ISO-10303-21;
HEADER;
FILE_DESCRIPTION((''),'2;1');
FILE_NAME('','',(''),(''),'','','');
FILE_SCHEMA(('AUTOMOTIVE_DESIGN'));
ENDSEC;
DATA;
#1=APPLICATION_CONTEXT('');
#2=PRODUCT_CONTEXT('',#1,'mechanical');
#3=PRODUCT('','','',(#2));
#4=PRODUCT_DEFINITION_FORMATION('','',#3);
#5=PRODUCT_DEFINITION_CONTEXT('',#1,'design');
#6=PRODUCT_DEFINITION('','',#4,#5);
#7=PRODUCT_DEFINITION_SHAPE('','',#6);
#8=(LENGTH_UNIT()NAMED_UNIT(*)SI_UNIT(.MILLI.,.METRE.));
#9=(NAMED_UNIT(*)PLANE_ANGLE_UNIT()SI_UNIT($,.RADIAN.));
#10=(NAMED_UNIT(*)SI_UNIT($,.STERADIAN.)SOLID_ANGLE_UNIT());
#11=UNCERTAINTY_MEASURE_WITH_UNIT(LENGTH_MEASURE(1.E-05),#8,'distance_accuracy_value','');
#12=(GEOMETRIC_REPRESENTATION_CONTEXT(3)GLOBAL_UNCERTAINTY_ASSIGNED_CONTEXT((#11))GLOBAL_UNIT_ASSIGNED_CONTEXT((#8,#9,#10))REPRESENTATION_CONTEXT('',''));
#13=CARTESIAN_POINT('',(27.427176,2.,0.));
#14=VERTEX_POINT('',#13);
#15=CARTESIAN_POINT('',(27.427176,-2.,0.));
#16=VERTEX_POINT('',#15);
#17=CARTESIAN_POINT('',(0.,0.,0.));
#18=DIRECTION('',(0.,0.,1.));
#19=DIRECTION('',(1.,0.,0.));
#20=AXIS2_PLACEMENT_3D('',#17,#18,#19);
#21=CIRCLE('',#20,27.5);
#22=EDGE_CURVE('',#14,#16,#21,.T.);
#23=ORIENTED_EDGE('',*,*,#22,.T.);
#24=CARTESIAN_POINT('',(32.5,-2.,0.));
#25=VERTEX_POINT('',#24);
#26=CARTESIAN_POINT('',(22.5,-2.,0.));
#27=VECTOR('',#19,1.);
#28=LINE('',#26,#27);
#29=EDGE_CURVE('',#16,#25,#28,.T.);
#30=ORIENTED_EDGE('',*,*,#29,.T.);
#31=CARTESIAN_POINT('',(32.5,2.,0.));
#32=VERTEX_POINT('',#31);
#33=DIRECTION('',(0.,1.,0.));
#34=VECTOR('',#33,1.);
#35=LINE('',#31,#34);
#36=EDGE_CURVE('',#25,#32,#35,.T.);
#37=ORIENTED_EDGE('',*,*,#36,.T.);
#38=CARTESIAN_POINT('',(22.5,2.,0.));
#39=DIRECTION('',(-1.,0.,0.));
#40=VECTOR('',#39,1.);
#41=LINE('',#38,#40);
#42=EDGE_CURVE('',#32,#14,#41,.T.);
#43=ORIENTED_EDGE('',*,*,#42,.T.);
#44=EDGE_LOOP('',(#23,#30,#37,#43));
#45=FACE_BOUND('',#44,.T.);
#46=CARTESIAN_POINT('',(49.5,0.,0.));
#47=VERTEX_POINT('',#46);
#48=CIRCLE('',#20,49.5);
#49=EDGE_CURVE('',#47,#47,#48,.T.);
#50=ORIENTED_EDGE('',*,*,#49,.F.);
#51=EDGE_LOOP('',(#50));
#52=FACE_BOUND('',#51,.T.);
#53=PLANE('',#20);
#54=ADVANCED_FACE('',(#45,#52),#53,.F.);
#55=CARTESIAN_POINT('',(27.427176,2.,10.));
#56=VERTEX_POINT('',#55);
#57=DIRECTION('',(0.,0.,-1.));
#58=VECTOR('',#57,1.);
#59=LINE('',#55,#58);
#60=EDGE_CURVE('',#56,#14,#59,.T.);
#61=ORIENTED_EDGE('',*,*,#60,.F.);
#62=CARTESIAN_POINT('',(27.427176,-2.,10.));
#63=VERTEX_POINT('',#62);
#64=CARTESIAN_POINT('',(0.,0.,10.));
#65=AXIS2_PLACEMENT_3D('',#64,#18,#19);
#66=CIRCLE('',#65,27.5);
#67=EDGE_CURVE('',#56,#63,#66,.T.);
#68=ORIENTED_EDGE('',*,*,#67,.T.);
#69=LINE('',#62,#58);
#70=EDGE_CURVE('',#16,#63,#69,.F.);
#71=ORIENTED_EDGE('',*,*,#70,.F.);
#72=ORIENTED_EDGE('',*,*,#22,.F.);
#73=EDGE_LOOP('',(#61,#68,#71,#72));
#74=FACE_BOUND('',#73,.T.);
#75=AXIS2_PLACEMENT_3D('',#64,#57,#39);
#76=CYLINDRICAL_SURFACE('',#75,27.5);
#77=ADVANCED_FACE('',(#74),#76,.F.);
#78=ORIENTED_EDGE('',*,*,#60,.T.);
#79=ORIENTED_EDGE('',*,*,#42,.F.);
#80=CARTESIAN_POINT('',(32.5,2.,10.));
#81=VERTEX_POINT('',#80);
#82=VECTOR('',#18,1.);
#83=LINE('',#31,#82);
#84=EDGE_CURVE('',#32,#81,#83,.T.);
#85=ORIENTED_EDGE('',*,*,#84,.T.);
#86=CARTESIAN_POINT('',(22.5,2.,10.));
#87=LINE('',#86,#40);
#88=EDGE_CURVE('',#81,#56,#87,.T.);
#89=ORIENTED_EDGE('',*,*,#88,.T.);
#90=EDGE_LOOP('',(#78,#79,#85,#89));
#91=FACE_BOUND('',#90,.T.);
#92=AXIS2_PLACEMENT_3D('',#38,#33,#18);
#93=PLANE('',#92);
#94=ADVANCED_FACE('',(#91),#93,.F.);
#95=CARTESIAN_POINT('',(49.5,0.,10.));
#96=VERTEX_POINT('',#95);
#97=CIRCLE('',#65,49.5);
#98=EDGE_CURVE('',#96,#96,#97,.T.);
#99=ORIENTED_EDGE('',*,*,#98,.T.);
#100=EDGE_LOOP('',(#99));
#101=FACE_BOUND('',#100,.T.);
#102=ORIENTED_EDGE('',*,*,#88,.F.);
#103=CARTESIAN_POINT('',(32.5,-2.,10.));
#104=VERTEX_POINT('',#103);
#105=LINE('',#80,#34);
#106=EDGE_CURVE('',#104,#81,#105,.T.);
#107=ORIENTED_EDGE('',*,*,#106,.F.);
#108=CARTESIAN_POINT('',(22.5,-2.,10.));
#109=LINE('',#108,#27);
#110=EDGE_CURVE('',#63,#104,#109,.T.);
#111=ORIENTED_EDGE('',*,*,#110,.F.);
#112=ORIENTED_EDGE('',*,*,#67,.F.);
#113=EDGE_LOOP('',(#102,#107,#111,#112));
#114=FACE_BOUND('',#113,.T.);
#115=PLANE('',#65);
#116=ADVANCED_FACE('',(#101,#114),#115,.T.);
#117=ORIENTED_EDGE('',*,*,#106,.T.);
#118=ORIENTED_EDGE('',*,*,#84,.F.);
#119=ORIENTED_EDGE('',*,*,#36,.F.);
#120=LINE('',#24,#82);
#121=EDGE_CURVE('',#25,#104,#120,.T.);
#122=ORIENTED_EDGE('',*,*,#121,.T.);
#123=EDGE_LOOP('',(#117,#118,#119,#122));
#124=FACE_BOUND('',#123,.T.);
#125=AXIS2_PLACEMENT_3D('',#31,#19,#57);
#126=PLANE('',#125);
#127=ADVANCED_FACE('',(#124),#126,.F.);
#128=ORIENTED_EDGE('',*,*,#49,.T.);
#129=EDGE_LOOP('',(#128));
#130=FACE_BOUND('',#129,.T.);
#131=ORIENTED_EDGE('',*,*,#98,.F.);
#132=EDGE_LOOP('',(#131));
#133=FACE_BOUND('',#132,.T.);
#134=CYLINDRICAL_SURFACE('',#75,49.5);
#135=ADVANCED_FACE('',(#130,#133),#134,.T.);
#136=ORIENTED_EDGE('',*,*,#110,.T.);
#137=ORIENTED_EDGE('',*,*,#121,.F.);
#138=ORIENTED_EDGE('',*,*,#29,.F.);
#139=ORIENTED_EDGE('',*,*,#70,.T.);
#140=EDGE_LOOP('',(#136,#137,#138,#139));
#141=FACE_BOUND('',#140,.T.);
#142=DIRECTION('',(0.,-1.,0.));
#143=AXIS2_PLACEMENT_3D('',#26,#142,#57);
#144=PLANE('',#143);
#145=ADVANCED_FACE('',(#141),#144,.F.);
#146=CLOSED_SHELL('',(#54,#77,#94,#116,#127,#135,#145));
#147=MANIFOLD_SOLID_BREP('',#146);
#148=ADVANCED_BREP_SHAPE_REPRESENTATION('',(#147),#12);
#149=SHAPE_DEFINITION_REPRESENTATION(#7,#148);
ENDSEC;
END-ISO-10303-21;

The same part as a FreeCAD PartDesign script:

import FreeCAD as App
import Part
import Sketcher


def add_polygon(sketch, points):
    """Adds a closed chain of lines whose ends are joined by coincident constraints."""
    first, n = sketch.GeometryCount, len(points)
    for a, b in zip(points, points[1:] + points[:1]):
        sketch.addGeometry(Part.LineSegment(App.Vector(*a, 0), App.Vector(*b, 0)), False)
    for i in range(n):
        sketch.addConstraint(Sketcher.Constraint("Coincident", first + i, 2, first + (i + 1) % n, 1))

doc = App.newDocument("Part")
body = doc.addObject("PartDesign::Body", "Body")

# Sketch on XY plane
sketch1 = body.newObject("Sketcher::SketchObject", "Sketch")
sketch1.AttachmentSupport = (doc.getObject("XY_Plane"), [""])
sketch1.MapMode = "FlatFace"
sketch1.addGeometry(Part.Circle(App.Vector(0, 0, 0), App.Vector(0, 0, 1), 50), False)
sketch1.addGeometry(Part.Circle(App.Vector(0, 0, 0), App.Vector(0, 0, 1), 28), False)
sketch1.addConstraint(Sketcher.Constraint("Coincident", 0, 3, -1, 1))
sketch1.addConstraint(Sketcher.Constraint("Coincident", 1, 3, -1, 1))
sketch1.addConstraint(Sketcher.Constraint("Diameter", 0, 99.0))
sketch1.addConstraint(Sketcher.Constraint("Diameter", 1, 55.0))
pad1 = body.newObject("PartDesign::Pad", "Pad")
pad1.Profile = sketch1
pad1.Length = 10

# Sketch on XY plane
sketch2 = body.newObject("Sketcher::SketchObject", "Sketch001")
sketch2.AttachmentSupport = (doc.getObject("XY_Plane"), [""])
sketch2.MapMode = "FlatFace"
sketch2.AttachmentOffset = App.Placement(App.Vector(0, 0, 10), App.Rotation())
add_polygon(sketch2, [(22.5, 2), (22.5, -2), (32.5, -2), (32.5, 2)])  # lines 0-3
sketch2.addConstraint(Sketcher.Constraint("Vertical", 0))
sketch2.addConstraint(Sketcher.Constraint("Horizontal", 1))
sketch2.addConstraint(Sketcher.Constraint("Vertical", 2))
sketch2.addConstraint(Sketcher.Constraint("Horizontal", 3))
sketch2.addConstraint(Sketcher.Constraint("DistanceX", 1, 1, 1, 2, 10.0))
sketch2.addConstraint(Sketcher.Constraint("DistanceY", 0, 2, 0, 1, 4.0))
sketch2.addConstraint(Sketcher.Constraint("DistanceY", 0, 2, -1, 1, 2.0))
sketch2.addConstraint(Sketcher.Constraint("DistanceX", -1, 1, 0, 2, 22.5))
pocket1 = body.newObject("PartDesign::Pocket", "Pocket")
pocket1.Profile = sketch2
pocket1.Type = "ThroughAll"

doc.recompute()
